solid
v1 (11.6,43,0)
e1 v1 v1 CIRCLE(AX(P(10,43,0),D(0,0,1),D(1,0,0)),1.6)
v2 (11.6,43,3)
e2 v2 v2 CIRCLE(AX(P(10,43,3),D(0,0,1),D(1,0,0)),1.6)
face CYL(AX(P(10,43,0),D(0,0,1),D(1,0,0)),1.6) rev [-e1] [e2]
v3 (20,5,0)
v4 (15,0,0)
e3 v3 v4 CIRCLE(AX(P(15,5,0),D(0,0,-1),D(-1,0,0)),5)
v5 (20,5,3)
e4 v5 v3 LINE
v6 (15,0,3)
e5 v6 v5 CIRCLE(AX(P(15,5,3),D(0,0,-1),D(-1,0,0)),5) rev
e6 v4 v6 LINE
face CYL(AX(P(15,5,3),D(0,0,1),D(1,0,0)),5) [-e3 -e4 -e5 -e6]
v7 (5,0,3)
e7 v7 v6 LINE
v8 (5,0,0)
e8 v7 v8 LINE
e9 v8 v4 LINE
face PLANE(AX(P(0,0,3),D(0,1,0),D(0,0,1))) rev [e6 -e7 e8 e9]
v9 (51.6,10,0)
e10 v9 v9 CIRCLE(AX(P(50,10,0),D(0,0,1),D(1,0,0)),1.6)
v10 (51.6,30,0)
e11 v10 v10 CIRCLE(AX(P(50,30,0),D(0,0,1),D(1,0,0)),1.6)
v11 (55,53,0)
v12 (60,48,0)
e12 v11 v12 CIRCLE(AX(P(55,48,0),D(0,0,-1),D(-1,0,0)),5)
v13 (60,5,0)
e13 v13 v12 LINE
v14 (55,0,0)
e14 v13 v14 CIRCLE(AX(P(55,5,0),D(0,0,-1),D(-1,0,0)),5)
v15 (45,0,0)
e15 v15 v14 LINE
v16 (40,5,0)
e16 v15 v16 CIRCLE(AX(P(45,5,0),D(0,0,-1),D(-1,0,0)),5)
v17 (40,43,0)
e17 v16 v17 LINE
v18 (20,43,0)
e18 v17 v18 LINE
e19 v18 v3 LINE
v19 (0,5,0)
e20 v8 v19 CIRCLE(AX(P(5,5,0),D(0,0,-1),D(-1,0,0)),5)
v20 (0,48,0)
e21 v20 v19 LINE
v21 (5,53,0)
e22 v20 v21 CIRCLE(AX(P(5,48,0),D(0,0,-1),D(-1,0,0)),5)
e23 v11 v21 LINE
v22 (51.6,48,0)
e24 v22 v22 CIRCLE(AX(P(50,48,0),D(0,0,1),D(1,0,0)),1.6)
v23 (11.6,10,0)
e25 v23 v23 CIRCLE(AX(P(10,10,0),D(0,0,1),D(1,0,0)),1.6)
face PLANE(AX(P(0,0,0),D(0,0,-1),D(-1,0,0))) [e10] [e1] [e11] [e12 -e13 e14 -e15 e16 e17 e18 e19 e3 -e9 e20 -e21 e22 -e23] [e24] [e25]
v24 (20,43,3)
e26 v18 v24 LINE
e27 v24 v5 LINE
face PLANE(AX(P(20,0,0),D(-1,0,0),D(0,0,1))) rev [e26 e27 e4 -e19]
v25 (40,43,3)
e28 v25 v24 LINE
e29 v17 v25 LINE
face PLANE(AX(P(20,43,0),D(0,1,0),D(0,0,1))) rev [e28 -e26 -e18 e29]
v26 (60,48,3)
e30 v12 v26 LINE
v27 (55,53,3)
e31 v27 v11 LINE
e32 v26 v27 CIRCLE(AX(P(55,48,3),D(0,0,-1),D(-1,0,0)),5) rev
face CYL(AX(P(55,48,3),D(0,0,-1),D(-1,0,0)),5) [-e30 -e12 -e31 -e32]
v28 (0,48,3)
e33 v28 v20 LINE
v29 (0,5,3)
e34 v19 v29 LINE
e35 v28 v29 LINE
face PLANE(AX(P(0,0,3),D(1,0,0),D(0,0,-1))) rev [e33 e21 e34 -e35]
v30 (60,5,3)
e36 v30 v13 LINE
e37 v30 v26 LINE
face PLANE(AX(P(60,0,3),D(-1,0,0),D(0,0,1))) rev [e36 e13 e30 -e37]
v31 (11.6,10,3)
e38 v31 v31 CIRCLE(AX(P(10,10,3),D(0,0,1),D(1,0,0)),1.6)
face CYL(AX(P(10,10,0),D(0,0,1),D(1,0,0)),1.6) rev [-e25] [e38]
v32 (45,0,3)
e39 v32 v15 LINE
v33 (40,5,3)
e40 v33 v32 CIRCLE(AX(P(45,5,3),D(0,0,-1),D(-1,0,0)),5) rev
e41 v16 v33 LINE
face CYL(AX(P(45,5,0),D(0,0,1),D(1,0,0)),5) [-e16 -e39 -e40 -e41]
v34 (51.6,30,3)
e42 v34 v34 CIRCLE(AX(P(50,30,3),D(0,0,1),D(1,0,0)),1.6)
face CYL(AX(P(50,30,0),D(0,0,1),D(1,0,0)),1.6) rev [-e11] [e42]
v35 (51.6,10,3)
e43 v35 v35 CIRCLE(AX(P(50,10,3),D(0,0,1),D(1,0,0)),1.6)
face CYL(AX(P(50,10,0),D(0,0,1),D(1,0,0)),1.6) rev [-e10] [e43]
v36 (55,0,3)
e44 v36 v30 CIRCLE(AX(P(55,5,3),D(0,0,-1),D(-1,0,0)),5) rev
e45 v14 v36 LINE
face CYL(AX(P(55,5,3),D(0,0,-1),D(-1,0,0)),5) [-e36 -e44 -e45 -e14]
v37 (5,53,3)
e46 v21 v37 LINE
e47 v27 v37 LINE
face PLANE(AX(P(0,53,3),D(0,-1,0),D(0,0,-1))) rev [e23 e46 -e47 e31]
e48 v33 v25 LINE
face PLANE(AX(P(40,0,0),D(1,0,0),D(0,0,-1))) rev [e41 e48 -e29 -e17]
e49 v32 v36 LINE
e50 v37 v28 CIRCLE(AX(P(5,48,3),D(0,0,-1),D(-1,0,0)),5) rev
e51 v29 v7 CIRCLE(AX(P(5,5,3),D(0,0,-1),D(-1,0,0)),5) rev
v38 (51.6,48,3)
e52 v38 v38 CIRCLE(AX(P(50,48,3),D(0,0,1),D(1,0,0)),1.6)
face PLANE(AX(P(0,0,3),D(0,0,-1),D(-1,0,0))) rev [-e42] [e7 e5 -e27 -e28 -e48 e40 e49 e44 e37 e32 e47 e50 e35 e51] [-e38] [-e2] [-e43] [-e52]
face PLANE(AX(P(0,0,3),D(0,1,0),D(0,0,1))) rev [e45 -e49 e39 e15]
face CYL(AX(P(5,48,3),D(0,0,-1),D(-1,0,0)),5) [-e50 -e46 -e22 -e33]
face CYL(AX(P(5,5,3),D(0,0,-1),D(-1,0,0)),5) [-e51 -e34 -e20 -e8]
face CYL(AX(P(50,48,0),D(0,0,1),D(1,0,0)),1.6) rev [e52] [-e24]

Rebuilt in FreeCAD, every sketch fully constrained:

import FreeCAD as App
import Part
import Sketcher
from FreeCAD import Vector


def edges_at(feature, points):
    """Names of the edges that pass closest to the given points."""
    edges = feature.Shape.Edges
    near = lambda p: min(range(len(edges)), key=lambda i: edges[i].distToShape(Part.Vertex(*p))[0])
    return sorted({f"Edge{near(p) + 1}" for p in points})


def add_polygon(sketch, points):
    """Adds a closed chain of lines whose ends are joined by coincident constraints."""
    first, n = sketch.GeometryCount, len(points)
    for a, b in zip(points, points[1:] + points[:1]):
        sketch.addGeometry(Part.LineSegment(App.Vector(*a, 0), App.Vector(*b, 0)), False)
    for i in range(n):
        sketch.addConstraint(Sketcher.Constraint("Coincident", first + i, 2, first + (i + 1) % n, 1))

doc = App.newDocument("Part")
params = doc.addObject("Spreadsheet::Sheet", "Params")
for row, (alias, value) in enumerate([
    ("sketch1_width", "60 mm"),
    ("sketch1_height", "53 mm"),
    ("pad1_length", "3 mm"),
    ("sketch2_width", "20 mm"),
    ("sketch2_height", "43 mm"),
    ("sketch3_diameter", "3.2 mm"),
    ("sketch4_diameter", "3.2 mm"),
    ("fillet_radius", "5 mm"),
    ("sketch5_diameter", "3.2 mm"),
], start=1):
    params.set(f"A{row}", alias)
    params.set(f"B{row}", "=" + value)
    params.setAlias(f"B{row}", alias)

body = doc.addObject("PartDesign::Body", "Body")

sketch1 = body.newObject("Sketcher::SketchObject", "Sketch")
sketch1.AttachmentSupport = (doc.getObject("XY_Plane"), [""])
sketch1.MapMode = "FlatFace"
add_polygon(sketch1, [(0, 53), (0, 0), (60, 0), (60, 53)])
sketch1.addConstraint([
    Sketcher.Constraint("Vertical", 0),
    Sketcher.Constraint("Horizontal", 1),
    Sketcher.Constraint("Vertical", 2),
    Sketcher.Constraint("Horizontal", 3),
    Sketcher.Constraint("Coincident", 0, 2, -1, 1),
    Sketcher.Constraint("DistanceX", 1, 1, 1, 2, 60.0),
    Sketcher.Constraint("DistanceY", 0, 2, 0, 1, 53.0),
])
sketch1.setExpression("Constraints[9]", "Params.sketch1_width")
sketch1.setExpression("Constraints[10]", "Params.sketch1_height")
pad1 = body.newObject("PartDesign::Pad", "Pad")
pad1.Profile = sketch1
pad1.setExpression("Length", "Params.pad1_length")

sketch2 = body.newObject("Sketcher::SketchObject", "Sketch001")
sketch2.AttachmentSupport = (doc.getObject("XY_Plane"), [""])
sketch2.MapMode = "FlatFace"
sketch2.AttachmentOffset = App.Placement(Vector(0, 0, 3), App.Rotation())
add_polygon(sketch2, [(20, 43), (20, 0), (40, 0), (40, 43)])
sketch2.addConstraint([
    Sketcher.Constraint("Vertical", 0),
    Sketcher.Constraint("Horizontal", 1),
    Sketcher.Constraint("Vertical", 2),
    Sketcher.Constraint("Horizontal", 3),
    Sketcher.Constraint("PointOnObject", 0, 2, -1),
    Sketcher.Constraint("DistanceX", 1, 1, 1, 2, 20.0),
    Sketcher.Constraint("DistanceY", 0, 2, 0, 1, 43.0),
    Sketcher.Constraint("DistanceX", -1, 1, 0, 2, 20.0),
])
sketch2.setExpression("Constraints[9]", "Params.sketch2_width")
sketch2.setExpression("Constraints[10]", "Params.sketch2_height")
pocket1 = body.newObject("PartDesign::Pocket", "Pocket")
pocket1.Profile = sketch2
pocket1.Type = "ThroughAll"

sketch3 = body.newObject("Sketcher::SketchObject", "Sketch002")
sketch3.AttachmentSupport = (doc.getObject("XY_Plane"), [""])
sketch3.MapMode = "FlatFace"
sketch3.AttachmentOffset = App.Placement(Vector(0, 0, 3), App.Rotation())
sketch3.addGeometry([
    Part.Circle(Vector(50, 10, 0), Vector(0, 0, 1), 1.6),
    Part.Circle(Vector(50, 30, 0), Vector(0, 0, 1), 1.6),
    Part.Circle(Vector(50, 48, 0), Vector(0, 0, 1), 1.6),
], False)
sketch3.addConstraint([
    Sketcher.Constraint("Equal", 0, 1),
    Sketcher.Constraint("Equal", 1, 2),
    Sketcher.Constraint("Vertical", 0, 3, 1, 3),
    Sketcher.Constraint("Vertical", 1, 3, 2, 3),
    Sketcher.Constraint("Diameter", 0, 3.2),
    Sketcher.Constraint("DistanceX", -1, 1, 0, 3, 50.0),
    Sketcher.Constraint("DistanceY", -1, 1, 0, 3, 10.0),
    Sketcher.Constraint("DistanceY", -1, 1, 1, 3, 30.0),
    Sketcher.Constraint("DistanceY", -1, 1, 2, 3, 48.0),
])
sketch3.setExpression("Constraints[4]", "Params.sketch3_diameter")
pocket2 = body.newObject("PartDesign::Pocket", "Pocket001")
pocket2.Profile = sketch3
pocket2.Type = "ThroughAll"

sketch4 = body.newObject("Sketcher::SketchObject", "Sketch003")
sketch4.AttachmentSupport = (doc.getObject("XY_Plane"), [""])
sketch4.MapMode = "FlatFace"
sketch4.AttachmentOffset = App.Placement(Vector(0, 0, 3), App.Rotation())
sketch4.addGeometry(Part.Circle(Vector(10, 10, 0), Vector(0, 0, 1), 1.6), False)
sketch4.addConstraint([
    Sketcher.Constraint("Diameter", 0, 3.2),
    Sketcher.Constraint("DistanceX", -1, 1, 0, 3, 10.0),
    Sketcher.Constraint("DistanceY", -1, 1, 0, 3, 10.0),
])
sketch4.setExpression("Constraints[0]", "Params.sketch4_diameter")
pocket3 = body.newObject("PartDesign::Pocket", "Pocket002")
pocket3.Profile = sketch4
pocket3.Type = "ThroughAll"
doc.recompute()

fillet = body.newObject("PartDesign::Fillet", "Fillet")
fillet.Base = (pocket3, edges_at(pocket3, [
    (20, 0, 1.5),
    (40, 0, 1.5),
    (0, 53, 1.5),
    (60, 53, 1.5),
    (60, 0, 1.5),
    (0, 0, 1.5),
]))
fillet.setExpression("Radius", "Params.fillet_radius")

sketch5 = body.newObject("Sketcher::SketchObject", "Sketch004")
sketch5.AttachmentSupport = (doc.getObject("XY_Plane"), [""])
sketch5.MapMode = "FlatFace"
sketch5.AttachmentOffset = App.Placement(Vector(0, 0, 3), App.Rotation())
sketch5.addGeometry(Part.Circle(Vector(10, 43, 0), Vector(0, 0, 1), 1.6), False)
sketch5.addConstraint([
    Sketcher.Constraint("Diameter", 0, 3.2),
    Sketcher.Constraint("DistanceX", -1, 1, 0, 3, 10.0),
    Sketcher.Constraint("DistanceY", -1, 1, 0, 3, 43.0),
])
sketch5.setExpression("Constraints[0]", "Params.sketch5_diameter")
pocket4 = body.newObject("PartDesign::Pocket", "Pocket003")
pocket4.Profile = sketch5
pocket4.Type = "ThroughAll"

doc.recompute()
